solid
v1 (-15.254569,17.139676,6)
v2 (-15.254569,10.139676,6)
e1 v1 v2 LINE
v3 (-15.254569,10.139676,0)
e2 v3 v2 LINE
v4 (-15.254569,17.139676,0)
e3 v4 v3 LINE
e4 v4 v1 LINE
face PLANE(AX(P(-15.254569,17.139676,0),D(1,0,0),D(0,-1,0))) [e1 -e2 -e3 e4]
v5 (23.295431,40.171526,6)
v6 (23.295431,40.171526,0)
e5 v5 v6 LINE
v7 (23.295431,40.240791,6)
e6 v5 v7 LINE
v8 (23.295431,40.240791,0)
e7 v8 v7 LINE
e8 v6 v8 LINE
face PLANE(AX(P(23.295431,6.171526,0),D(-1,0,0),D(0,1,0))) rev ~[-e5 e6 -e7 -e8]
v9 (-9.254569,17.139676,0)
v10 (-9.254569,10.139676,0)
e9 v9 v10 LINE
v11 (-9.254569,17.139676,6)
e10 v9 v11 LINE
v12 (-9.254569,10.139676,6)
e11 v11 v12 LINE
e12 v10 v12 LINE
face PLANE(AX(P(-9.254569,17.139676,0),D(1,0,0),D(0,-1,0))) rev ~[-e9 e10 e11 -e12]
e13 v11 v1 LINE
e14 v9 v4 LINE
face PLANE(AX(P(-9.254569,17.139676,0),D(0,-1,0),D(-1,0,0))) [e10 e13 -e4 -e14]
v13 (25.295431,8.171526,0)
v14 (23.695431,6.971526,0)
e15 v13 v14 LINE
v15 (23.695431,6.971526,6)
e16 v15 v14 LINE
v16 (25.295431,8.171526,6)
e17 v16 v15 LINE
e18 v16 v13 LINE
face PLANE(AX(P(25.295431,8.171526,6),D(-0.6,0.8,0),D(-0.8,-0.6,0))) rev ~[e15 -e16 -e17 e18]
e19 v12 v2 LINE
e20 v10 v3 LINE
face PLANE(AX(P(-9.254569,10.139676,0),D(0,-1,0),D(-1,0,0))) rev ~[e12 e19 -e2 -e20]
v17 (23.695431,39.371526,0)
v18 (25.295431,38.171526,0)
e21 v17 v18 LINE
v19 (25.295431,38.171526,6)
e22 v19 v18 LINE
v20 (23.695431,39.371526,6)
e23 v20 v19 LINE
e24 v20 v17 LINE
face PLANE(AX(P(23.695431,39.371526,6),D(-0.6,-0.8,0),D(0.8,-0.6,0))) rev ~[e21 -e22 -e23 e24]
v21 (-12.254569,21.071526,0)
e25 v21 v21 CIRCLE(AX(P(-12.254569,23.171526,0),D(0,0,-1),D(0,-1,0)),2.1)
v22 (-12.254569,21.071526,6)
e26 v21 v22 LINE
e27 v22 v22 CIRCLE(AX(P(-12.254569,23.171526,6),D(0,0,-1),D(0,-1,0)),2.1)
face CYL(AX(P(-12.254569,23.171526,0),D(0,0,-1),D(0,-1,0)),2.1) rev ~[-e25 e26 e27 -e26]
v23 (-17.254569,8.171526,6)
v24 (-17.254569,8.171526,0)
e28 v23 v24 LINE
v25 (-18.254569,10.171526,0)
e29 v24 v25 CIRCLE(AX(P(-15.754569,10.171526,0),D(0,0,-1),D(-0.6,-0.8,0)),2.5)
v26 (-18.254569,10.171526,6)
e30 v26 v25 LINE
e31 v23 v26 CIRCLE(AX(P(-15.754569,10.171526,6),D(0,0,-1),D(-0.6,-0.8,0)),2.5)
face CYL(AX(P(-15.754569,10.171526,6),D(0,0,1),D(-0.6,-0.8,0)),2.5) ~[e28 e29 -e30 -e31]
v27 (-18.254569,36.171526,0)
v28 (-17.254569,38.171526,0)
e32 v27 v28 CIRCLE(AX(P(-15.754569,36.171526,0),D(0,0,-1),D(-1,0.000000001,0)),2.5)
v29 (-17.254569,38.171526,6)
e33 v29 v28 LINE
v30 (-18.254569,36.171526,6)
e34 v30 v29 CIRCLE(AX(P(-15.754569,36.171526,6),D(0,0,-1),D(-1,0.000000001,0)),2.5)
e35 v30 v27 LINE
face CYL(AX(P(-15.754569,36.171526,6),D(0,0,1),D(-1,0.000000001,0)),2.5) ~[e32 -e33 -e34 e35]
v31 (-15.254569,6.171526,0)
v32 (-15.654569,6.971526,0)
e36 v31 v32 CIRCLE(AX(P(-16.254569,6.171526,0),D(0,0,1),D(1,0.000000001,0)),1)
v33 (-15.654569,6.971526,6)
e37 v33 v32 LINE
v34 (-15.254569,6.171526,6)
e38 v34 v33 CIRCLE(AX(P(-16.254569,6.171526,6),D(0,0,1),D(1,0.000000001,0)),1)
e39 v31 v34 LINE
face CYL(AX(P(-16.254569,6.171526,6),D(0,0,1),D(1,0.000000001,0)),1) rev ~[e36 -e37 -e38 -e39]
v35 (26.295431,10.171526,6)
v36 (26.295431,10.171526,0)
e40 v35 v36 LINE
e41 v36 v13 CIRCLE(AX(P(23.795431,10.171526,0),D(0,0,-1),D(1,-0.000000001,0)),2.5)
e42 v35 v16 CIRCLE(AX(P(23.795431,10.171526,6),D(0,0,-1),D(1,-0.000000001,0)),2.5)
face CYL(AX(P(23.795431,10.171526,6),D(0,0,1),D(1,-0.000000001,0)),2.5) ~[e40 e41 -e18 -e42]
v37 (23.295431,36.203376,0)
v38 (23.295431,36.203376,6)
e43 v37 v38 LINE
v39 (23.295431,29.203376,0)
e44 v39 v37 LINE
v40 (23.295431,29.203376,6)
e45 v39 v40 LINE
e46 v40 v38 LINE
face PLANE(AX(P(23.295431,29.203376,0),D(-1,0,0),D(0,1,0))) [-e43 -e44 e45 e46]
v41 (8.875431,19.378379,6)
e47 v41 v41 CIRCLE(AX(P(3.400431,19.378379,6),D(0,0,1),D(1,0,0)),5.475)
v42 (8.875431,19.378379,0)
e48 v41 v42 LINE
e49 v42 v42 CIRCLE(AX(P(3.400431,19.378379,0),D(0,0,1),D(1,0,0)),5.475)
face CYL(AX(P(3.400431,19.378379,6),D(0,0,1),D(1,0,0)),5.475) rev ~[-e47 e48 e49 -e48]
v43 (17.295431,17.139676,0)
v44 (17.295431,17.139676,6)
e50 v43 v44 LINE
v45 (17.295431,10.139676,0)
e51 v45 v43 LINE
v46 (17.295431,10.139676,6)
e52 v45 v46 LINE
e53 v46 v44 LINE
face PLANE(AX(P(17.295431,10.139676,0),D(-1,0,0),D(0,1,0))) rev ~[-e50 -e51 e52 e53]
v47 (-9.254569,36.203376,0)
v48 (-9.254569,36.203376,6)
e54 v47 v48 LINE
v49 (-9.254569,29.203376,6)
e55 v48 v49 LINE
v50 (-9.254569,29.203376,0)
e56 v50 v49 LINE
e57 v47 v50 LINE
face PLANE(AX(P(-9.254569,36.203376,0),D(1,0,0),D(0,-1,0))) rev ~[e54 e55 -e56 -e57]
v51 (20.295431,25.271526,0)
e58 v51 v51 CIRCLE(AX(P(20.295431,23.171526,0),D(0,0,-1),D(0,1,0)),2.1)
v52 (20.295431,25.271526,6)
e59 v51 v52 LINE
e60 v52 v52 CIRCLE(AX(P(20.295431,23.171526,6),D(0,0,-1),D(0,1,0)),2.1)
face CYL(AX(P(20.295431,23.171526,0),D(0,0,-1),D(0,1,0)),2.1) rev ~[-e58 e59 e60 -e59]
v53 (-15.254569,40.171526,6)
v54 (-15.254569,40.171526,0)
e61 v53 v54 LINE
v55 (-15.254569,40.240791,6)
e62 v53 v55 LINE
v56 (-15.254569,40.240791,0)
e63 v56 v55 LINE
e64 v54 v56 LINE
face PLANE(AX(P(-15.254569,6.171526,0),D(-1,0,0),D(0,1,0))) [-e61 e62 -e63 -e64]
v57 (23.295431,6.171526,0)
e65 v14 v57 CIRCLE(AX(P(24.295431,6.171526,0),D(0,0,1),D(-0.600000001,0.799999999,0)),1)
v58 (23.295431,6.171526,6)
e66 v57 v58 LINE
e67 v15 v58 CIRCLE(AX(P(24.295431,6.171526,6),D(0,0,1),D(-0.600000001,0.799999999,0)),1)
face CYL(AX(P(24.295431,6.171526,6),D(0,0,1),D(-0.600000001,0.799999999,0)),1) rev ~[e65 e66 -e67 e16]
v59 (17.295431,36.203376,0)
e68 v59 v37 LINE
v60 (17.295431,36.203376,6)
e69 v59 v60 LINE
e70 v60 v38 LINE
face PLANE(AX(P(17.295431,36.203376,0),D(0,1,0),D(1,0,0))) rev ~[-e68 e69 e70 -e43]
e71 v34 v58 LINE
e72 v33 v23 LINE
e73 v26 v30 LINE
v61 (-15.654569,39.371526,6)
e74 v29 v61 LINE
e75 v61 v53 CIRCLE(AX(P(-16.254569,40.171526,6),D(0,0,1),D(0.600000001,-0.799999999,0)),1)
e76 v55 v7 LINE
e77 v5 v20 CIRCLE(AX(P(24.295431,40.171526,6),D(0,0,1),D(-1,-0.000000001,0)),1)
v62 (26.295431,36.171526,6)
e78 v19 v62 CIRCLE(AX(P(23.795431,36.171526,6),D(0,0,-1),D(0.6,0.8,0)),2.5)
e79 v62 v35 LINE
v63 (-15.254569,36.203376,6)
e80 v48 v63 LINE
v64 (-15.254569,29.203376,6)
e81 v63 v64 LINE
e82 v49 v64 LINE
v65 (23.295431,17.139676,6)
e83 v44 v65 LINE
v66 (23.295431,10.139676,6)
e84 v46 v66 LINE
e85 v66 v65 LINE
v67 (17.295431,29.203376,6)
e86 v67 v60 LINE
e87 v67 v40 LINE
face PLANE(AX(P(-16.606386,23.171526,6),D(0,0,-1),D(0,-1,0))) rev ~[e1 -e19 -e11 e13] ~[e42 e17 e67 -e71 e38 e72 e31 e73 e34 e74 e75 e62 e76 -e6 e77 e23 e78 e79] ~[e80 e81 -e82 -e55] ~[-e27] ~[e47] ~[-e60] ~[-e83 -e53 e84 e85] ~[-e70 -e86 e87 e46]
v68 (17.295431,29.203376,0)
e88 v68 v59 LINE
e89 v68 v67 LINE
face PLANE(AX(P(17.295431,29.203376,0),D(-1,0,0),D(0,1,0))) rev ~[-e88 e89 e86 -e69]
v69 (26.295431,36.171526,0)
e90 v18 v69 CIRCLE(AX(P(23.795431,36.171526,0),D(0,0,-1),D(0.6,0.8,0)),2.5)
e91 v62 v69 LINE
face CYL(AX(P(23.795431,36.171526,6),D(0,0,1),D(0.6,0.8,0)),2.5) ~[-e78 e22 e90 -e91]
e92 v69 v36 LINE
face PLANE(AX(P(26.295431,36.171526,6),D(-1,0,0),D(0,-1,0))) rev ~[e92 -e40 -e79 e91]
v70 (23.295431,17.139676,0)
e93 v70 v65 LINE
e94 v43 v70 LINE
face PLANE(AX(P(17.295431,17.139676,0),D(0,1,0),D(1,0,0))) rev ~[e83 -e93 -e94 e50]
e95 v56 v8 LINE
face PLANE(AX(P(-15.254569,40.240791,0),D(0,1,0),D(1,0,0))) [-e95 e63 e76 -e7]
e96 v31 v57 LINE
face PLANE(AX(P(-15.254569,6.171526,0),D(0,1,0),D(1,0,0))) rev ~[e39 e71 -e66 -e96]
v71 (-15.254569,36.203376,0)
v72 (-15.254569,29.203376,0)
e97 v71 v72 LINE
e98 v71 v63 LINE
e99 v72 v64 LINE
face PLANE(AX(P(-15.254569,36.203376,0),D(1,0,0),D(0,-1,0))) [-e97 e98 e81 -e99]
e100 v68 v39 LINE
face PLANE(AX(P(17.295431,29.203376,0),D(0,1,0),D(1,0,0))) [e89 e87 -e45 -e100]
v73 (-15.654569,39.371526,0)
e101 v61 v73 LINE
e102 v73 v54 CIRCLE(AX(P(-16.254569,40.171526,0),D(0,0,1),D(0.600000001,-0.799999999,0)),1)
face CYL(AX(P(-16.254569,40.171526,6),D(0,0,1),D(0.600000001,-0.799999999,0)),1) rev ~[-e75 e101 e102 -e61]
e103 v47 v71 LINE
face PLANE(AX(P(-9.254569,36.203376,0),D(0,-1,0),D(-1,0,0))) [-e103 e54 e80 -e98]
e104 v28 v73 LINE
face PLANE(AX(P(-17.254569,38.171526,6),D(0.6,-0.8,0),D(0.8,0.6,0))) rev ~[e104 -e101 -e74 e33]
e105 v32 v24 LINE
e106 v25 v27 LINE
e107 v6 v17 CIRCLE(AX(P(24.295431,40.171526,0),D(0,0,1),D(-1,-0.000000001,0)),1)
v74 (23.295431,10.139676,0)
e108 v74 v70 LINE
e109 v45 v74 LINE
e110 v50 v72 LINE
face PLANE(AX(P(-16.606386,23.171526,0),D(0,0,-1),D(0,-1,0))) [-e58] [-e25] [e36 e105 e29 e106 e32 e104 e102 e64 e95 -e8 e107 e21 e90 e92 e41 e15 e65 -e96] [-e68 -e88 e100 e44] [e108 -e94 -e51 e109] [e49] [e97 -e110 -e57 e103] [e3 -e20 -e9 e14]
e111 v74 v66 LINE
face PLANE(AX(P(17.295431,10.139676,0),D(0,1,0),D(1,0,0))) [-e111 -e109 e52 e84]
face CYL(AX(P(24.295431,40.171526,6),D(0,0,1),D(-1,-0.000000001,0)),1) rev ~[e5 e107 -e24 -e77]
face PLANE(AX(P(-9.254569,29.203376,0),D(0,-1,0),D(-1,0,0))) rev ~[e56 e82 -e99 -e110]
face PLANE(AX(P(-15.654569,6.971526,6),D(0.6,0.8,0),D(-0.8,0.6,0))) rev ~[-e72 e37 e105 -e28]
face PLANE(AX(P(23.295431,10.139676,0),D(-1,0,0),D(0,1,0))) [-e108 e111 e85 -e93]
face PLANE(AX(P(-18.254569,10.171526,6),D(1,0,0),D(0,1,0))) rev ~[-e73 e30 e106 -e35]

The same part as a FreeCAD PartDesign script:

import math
import FreeCAD as App
import Part
import Sketcher

V = App.Vector

doc = App.newDocument("Part")
body = doc.addObject("PartDesign::Body", "Body")

# Sketch on XY plane
sketch1 = doc.addObject("Sketcher::SketchObject", "Sketch")
body.addObject(sketch1)
sketch1.AttachmentSupport = (doc.XY_Plane, [""])
sketch1.MapMode = "FlatFace"
sketch1.addGeometry([
    Part.LineSegment(V(-15, 40, 0), V(-15, 6, 0)),
    Part.LineSegment(V(-15, 6, 0), V(23, 6, 0)),
    Part.LineSegment(V(23, 6, 0), V(23, 40, 0)),
    Part.LineSegment(V(23, 40, 0), V(-15, 40, 0)),
], False)
sketch1.addConstraint([
    Sketcher.Constraint("Coincident", 0, 2, 1, 1),
    Sketcher.Constraint("Coincident", 1, 2, 2, 1),
    Sketcher.Constraint("Coincident", 2, 2, 3, 1),
    Sketcher.Constraint("Coincident", 3, 2, 0, 1),
    Sketcher.Constraint("Vertical", 0),
    Sketcher.Constraint("Horizontal", 1),
    Sketcher.Constraint("Vertical", 2),
    Sketcher.Constraint("Horizontal", 3),
    Sketcher.Constraint("DistanceX", 1, 1, 1, 2, 38.55),
    Sketcher.Constraint("DistanceY", 0, 2, 0, 1, 34.069264),
    Sketcher.Constraint("DistanceX", 0, 2, -1, 1, 15.254569),
    Sketcher.Constraint("DistanceY", -1, 1, 2, 2, 40.240791),
])
pad1 = doc.addObject("PartDesign::Pad", "Pad")
body.addObject(pad1)
pad1.Profile = sketch1
pad1.Length = 6

# Sketch on XY plane
sketch2 = doc.addObject("Sketcher::SketchObject", "Sketch001")
body.addObject(sketch2)
sketch2.AttachmentSupport = (doc.XY_Plane, [""])
sketch2.MapMode = "FlatFace"
sketch2.AttachmentOffset = App.Placement(V(0, 0, 6), App.Rotation())
sketch2.addGeometry(Part.Circle(V(3, 19, 0), V(0, 0, 1), 5), False)
sketch2.addConstraint([
    Sketcher.Constraint("Diameter", 0, 10.95),
    Sketcher.Constraint("DistanceX", -1, 1, 0, 3, 3.400431),
    Sketcher.Constraint("DistanceY", -1, 1, 0, 3, 19.378379),
])
pocket1 = doc.addObject("PartDesign::Pocket", "Pocket")
body.addObject(pocket1)
pocket1.Profile = sketch2
pocket1.Type = "ThroughAll"

# Sketch on XY plane
sketch3 = doc.addObject("Sketcher::SketchObject", "Sketch002")
body.addObject(sketch3)
sketch3.AttachmentSupport = (doc.XY_Plane, [""])
sketch3.MapMode = "FlatFace"
sketch3.AttachmentOffset = App.Placement(V(0, 0, 6), App.Rotation())
sketch3.addGeometry([
    Part.LineSegment(V(26.3, 36.2, 0), V(26.3, 10.2, 0)),  # 0
    Part.ArcOfCircle(Part.Circle(V(23.8, 10.2, 0), V(0, 0, 1), 2.5), math.radians(-53), math.radians(0)),  # 1
    Part.LineSegment(V(25.3, 8.2, 0), V(23.7, 7, 0)),  # 2
    Part.ArcOfCircle(Part.Circle(V(24.3, 6.2, 0), V(0, 0, 1), 1), math.radians(127), math.radians(180)),  # 3
    Part.LineSegment(V(23.3, 6.2, 0), V(23.3, 40.2, 0)),  # 4
    Part.ArcOfCircle(Part.Circle(V(24.3, 40.2, 0), V(0, 0, 1), 1), math.radians(-180), math.radians(-127)),  # 5
    Part.LineSegment(V(23.7, 39.4, 0), V(25.3, 38.2, 0)),  # 6
    Part.ArcOfCircle(Part.Circle(V(23.8, 36.2, 0), V(0, 0, 1), 2.5), math.radians(0), math.radians(53)),  # 7
], False)
sketch3.addConstraint([
    Sketcher.Constraint("Tangent", 0, 2, 1, 2),
    Sketcher.Constraint("Tangent", 1, 1, 2, 1),
    Sketcher.Constraint("Tangent", 2, 2, 3, 1),
    Sketcher.Constraint("Tangent", 3, 2, 4, 1),
    Sketcher.Constraint("Tangent", 4, 2, 5, 1),
    Sketcher.Constraint("Tangent", 5, 2, 6, 1),
    Sketcher.Constraint("Tangent", 6, 2, 7, 2),
    Sketcher.Constraint("Tangent", 7, 1, 0, 1),
    Sketcher.Constraint("Vertical", 0),
    Sketcher.Constraint("Vertical", 4),
    Sketcher.Constraint("Equal", 3, 5),
    Sketcher.Constraint("Equal", 1, 7),
    Sketcher.Constraint("Vertical", 2, 2, 5, 2),
    Sketcher.Constraint("Radius", 3, 1.0),
    Sketcher.Constraint("Radius", 1, 2.5),
    Sketcher.Constraint("DistanceY", 0, 2, 0, 1, 26.0),
    Sketcher.Constraint("DistanceY", 4, 1, 4, 2, 34.0),
    Sketcher.Constraint("Distance", 2, 2.0),
    Sketcher.Constraint("DistanceX", -1, 1, 1, 3, 23.795431),
    Sketcher.Constraint("DistanceY", -1, 1, 1, 3, 10.171526),
])
pad2 = doc.addObject("PartDesign::Pad", "Pad001")
body.addObject(pad2)
pad2.Profile = sketch3
pad2.Length = 6
pad2.Reversed = True

# Sketch on XY plane
sketch4 = doc.addObject("Sketcher::SketchObject", "Sketch003")
body.addObject(sketch4)
sketch4.AttachmentSupport = (doc.XY_Plane, [""])
sketch4.MapMode = "FlatFace"
sketch4.addGeometry([
    Part.Circle(V(20.3, 23.2, 0), V(0, 0, 1), 2.1),  # 0
    Part.LineSegment(V(23.3, 29.2, 0), V(17.3, 29.2, 0)),  # 1
    Part.LineSegment(V(17.3, 29.2, 0), V(17.3, 36.2, 0)),  # 2
    Part.LineSegment(V(17.3, 36.2, 0), V(23.3, 36.2, 0)),  # 3
    Part.LineSegment(V(23.3, 36.2, 0), V(23.3, 29.2, 0)),  # 4
    Part.LineSegment(V(23.3, 10.1, 0), V(17.3, 10.1, 0)),  # 5
    Part.LineSegment(V(17.3, 10.1, 0), V(17.3, 17.1, 0)),  # 6
    Part.LineSegment(V(17.3, 17.1, 0), V(23.3, 17.1, 0)),  # 7
    Part.LineSegment(V(23.3, 17.1, 0), V(23.3, 10.1, 0)),  # 8
], False)
sketch4.addConstraint([
    Sketcher.Constraint("Coincident", 1, 2, 2, 1),
    Sketcher.Constraint("Coincident", 2, 2, 3, 1),
    Sketcher.Constraint("Coincident", 3, 2, 4, 1),
    Sketcher.Constraint("Coincident", 4, 2, 1, 1),
    Sketcher.Constraint("Coincident", 5, 2, 6, 1),
    Sketcher.Constraint("Coincident", 6, 2, 7, 1),
    Sketcher.Constraint("Coincident", 7, 2, 8, 1),
    Sketcher.Constraint("Coincident", 8, 2, 5, 1),
    Sketcher.Constraint("Horizontal", 1),
    Sketcher.Constraint("Vertical", 2),
    Sketcher.Constraint("Horizontal", 3),
    Sketcher.Constraint("Vertical", 4),
    Sketcher.Constraint("Horizontal", 5),
    Sketcher.Constraint("Vertical", 6),
    Sketcher.Constraint("Horizontal", 7),
    Sketcher.Constraint("Vertical", 8),
    Sketcher.Constraint("Vertical", 2, 2, 5, 2),
    Sketcher.Constraint("Vertical", 4, 2, 7, 2),
    Sketcher.Constraint("Equal", 4, 6),
    Sketcher.Constraint("Diameter", 0, 4.2),
    Sketcher.Constraint("DistanceX", 1, 2, 1, 1, 6.0),
    Sketcher.Constraint("DistanceY", 2, 1, 2, 2, 7.0),
    Sketcher.Constraint("DistanceX", 1, 2, 0, 3, 3.0),
    Sketcher.Constraint("DistanceY", 5, 2, 1, 2, 19.0637),
    Sketcher.Constraint("DistanceX", -1, 1, 0, 3, 20.295431),
    Sketcher.Constraint("DistanceY", 0, 3, 1, 2, 6.03185),
    Sketcher.Constraint("DistanceY", -1, 1, 0, 3, 23.171526),
])
pocket2 = doc.addObject("PartDesign::Pocket", "Pocket001")
body.addObject(pocket2)
pocket2.Profile = sketch4
pocket2.Type = "ThroughAll"
pocket2.Reversed = True

# Sketch on XY plane
sketch5 = doc.addObject("Sketcher::SketchObject", "Sketch004")
body.addObject(sketch5)
sketch5.AttachmentSupport = (doc.XY_Plane, [""])
sketch5.MapMode = "FlatFace"
sketch5.AttachmentOffset = App.Placement(V(0, 0, 6), App.Rotation())
sketch5.addGeometry([
    Part.LineSegment(V(-18.3, 10.2, 0), V(-18.3, 36.2, 0)),  # 0
    Part.ArcOfCircle(Part.Circle(V(-15.8, 36.2, 0), V(0, 0, 1), 2.5), math.radians(127), math.radians(180)),  # 1
    Part.LineSegment(V(-17.3, 38.2, 0), V(-15.7, 39.4, 0)),  # 2
    Part.ArcOfCircle(Part.Circle(V(-16.3, 40.2, 0), V(0, 0, 1), 1), math.radians(-53), math.radians(0)),  # 3
    Part.LineSegment(V(-15.3, 40.2, 0), V(-15.3, 6.2, 0)),  # 4
    Part.ArcOfCircle(Part.Circle(V(-16.3, 6.2, 0), V(0, 0, 1), 1), math.radians(0), math.radians(53)),  # 5
    Part.LineSegment(V(-15.7, 7, 0), V(-17.3, 8.2, 0)),  # 6
    Part.ArcOfCircle(Part.Circle(V(-15.8, 10.2, 0), V(0, 0, 1), 2.5), math.radians(-180), math.radians(-127)),  # 7
], False)
sketch5.addConstraint([
    Sketcher.Constraint("Tangent", 0, 2, 1, 2),
    Sketcher.Constraint("Tangent", 1, 1, 2, 1),
    Sketcher.Constraint("Tangent", 2, 2, 3, 1),
    Sketcher.Constraint("Tangent", 3, 2, 4, 1),
    Sketcher.Constraint("Tangent", 4, 2, 5, 1),
    Sketcher.Constraint("Tangent", 5, 2, 6, 1),
    Sketcher.Constraint("Tangent", 6, 2, 7, 2),
    Sketcher.Constraint("Tangent", 7, 1, 0, 1),
    Sketcher.Constraint("Vertical", 0),
    Sketcher.Constraint("Vertical", 4),
    Sketcher.Constraint("Equal", 3, 5),
    Sketcher.Constraint("Equal", 1, 7),
    Sketcher.Constraint("Vertical", 2, 2, 5, 2),
    Sketcher.Constraint("Radius", 3, 1.0),
    Sketcher.Constraint("Radius", 1, 2.5),
    Sketcher.Constraint("DistanceY", 0, 1, 0, 2, 26.0),
    Sketcher.Constraint("DistanceY", 4, 2, 4, 1, 34.0),
    Sketcher.Constraint("Distance", 2, 2.0),
    Sketcher.Constraint("DistanceX", 1, 3, -1, 1, 15.754569),
    Sketcher.Constraint("DistanceY", -1, 1, 1, 3, 36.171526),
])
pad3 = doc.addObject("PartDesign::Pad", "Pad002")
body.addObject(pad3)
pad3.Profile = sketch5
pad3.Length = 6
pad3.Reversed = True

# Sketch on XY plane
sketch6 = doc.addObject("Sketcher::SketchObject", "Sketch005")
body.addObject(sketch6)
sketch6.AttachmentSupport = (doc.XY_Plane, [""])
sketch6.MapMode = "FlatFace"
sketch6.addGeometry([
    Part.Circle(V(-12.3, 23.2, 0), V(0, 0, 1), 2.1),  # 0
    Part.LineSegment(V(-15.3, 17.1, 0), V(-9.3, 17.1, 0)),  # 1
    Part.LineSegment(V(-9.3, 17.1, 0), V(-9.3, 10.1, 0)),  # 2
    Part.LineSegment(V(-9.3, 10.1, 0), V(-15.3, 10.1, 0)),  # 3
    Part.LineSegment(V(-15.3, 10.1, 0), V(-15.3, 17.1, 0)),  # 4
    Part.LineSegment(V(-15.3, 36.2, 0), V(-9.3, 36.2, 0)),  # 5
    Part.LineSegment(V(-9.3, 36.2, 0), V(-9.3, 29.2, 0)),  # 6
    Part.LineSegment(V(-9.3, 29.2, 0), V(-15.3, 29.2, 0)),  # 7
    Part.LineSegment(V(-15.3, 29.2, 0), V(-15.3, 36.2, 0)),  # 8
], False)
sketch6.addConstraint([
    Sketcher.Constraint("Coincident", 1, 2, 2, 1),
    Sketcher.Constraint("Coincident", 2, 2, 3, 1),
    Sketcher.Constraint("Coincident", 3, 2, 4, 1),
    Sketcher.Constraint("Coincident", 4, 2, 1, 1),
    Sketcher.Constraint("Coincident", 5, 2, 6, 1),
    Sketcher.Constraint("Coincident", 6, 2, 7, 1),
    Sketcher.Constraint("Coincident", 7, 2, 8, 1),
    Sketcher.Constraint("Coincident", 8, 2, 5, 1),
    Sketcher.Constraint("Horizontal", 1),
    Sketcher.Constraint("Vertical", 2),
    Sketcher.Constraint("Horizontal", 3),
    Sketcher.Constraint("Vertical", 4),
    Sketcher.Constraint("Horizontal", 5),
    Sketcher.Constraint("Vertical", 6),
    Sketcher.Constraint("Horizontal", 7),
    Sketcher.Constraint("Vertical", 8),
    Sketcher.Constraint("Vertical", 2, 2, 5, 2),
    Sketcher.Constraint("Vertical", 4, 2, 7, 2),
    Sketcher.Constraint("Equal", 4, 6),
    Sketcher.Constraint("Diameter", 0, 4.2),
    Sketcher.Constraint("DistanceX", 1, 1, 1, 2, 6.0),
    Sketcher.Constraint("DistanceY", 2, 2, 2, 1, 7.0),
    Sketcher.Constraint("DistanceX", 0, 3, 1, 2, 3.0),
    Sketcher.Constraint("DistanceY", 1, 2, 5, 2, 19.0637),
    Sketcher.Constraint("DistanceX", 0, 3, -1, 1, 12.254569),
    Sketcher.Constraint("DistanceY", 1, 2, 0, 3, 6.03185),
    Sketcher.Constraint("DistanceY", -1, 1, 0, 3, 23.171526),
])
pocket3 = doc.addObject("PartDesign::Pocket", "Pocket002")
body.addObject(pocket3)
pocket3.Profile = sketch6
pocket3.Type = "ThroughAll"
pocket3.Reversed = True

doc.recompute()
